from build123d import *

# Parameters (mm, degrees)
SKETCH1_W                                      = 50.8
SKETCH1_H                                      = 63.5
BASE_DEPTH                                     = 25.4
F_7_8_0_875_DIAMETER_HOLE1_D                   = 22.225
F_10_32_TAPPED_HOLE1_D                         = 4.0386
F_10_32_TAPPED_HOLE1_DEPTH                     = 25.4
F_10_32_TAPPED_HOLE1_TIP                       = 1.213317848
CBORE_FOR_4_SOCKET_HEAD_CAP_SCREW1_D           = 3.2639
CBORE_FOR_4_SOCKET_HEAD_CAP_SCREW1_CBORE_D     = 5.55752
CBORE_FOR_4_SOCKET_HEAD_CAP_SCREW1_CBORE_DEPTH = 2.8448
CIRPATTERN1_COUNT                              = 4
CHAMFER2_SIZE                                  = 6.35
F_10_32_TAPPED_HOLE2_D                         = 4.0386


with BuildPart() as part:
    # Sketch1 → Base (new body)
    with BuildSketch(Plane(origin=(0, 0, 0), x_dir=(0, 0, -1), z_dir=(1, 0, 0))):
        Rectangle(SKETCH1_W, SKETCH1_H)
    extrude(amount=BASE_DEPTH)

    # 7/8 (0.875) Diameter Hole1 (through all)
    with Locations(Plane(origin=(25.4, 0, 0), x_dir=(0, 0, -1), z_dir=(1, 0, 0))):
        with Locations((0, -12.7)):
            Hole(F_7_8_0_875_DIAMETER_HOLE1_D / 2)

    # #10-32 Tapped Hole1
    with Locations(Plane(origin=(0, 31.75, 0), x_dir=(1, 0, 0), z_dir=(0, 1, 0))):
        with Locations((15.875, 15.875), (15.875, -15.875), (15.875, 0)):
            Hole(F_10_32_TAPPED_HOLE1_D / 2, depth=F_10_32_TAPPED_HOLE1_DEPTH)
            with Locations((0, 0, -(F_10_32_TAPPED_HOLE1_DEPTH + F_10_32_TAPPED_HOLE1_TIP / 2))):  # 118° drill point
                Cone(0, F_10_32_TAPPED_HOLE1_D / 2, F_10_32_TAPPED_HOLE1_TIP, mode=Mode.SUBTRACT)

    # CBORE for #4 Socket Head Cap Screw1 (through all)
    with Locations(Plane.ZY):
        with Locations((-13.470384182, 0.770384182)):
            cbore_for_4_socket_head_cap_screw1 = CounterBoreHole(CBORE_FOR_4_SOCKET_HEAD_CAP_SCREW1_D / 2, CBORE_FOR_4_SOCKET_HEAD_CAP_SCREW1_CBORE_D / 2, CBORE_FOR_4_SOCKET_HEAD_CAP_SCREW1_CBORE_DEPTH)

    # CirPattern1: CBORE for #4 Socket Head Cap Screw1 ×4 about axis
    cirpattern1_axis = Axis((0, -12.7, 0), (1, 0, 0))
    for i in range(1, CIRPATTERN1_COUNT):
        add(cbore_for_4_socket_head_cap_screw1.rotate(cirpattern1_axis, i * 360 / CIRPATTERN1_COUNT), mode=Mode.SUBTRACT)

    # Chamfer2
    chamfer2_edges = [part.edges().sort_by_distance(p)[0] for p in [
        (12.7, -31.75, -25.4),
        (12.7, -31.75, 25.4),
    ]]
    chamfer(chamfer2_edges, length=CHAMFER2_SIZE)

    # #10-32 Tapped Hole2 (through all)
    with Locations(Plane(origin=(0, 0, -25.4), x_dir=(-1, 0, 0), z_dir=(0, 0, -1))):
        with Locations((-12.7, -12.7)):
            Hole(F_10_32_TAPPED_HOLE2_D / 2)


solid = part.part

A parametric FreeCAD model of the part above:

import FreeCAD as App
import Part
import Sketcher
Q = App.Units.Quantity


def edges_at(feature, points):
    """Names of the edges that pass closest to the given points."""
    edges = feature.Shape.Edges
    near = lambda p: min(range(len(edges)), key=lambda i: edges[i].distToShape(Part.Vertex(*p))[0])
    return sorted({f"Edge{near(p) + 1}" for p in points})

doc = App.newDocument("Part")
params = doc.addObject("Spreadsheet::Sheet", "Params")
for row, (alias, value) in enumerate([
    ("sketch1_height", "2 in"),
    ("sketch1_width", "2.5 in"),
    ("pad1_length", "1 in"),
    ("sketch2_diameter", "0.875 in"),
    ("hole_diameter", "0.875 in"),
    ("sketch3_diameter", "0.159 in"),
    ("hole2_diameter", "0.159 in"),
    ("hole2_depth", "1 in"),
    ("hole3_diameter", "0.1285 in"),
    ("hole3_cbore_diameter", "0.2188 in"),
    ("hole3_cbore_depth", "0.112 in"),
    ("chamfer_size", "0.25 in"),
    ("sketch5_diameter", "0.159 in"),
    ("hole4_diameter", "0.159 in"),
], start=1):
    params.set(f"A{row}", alias)
    params.set(f"B{row}", "=" + value)
    params.setAlias(f"B{row}", alias)

body = doc.addObject("PartDesign::Body", "Body")

sketch1 = doc.addObject("Sketcher::SketchObject", "Sketch")
body.addObject(sketch1)
sketch1.AttachmentSupport = (doc.YZ_Plane, [""])
sketch1.MapMode = "FlatFace"
sketch1.addGeometry([
    Part.LineSegment(App.Vector(31.75, 25.4, 0), App.Vector(-31.75, 25.4, 0)),
    Part.LineSegment(App.Vector(-31.75, 25.4, 0), App.Vector(-31.75, -25.4, 0)),
    Part.LineSegment(App.Vector(-31.75, -25.4, 0), App.Vector(31.75, -25.4, 0)),
    Part.LineSegment(App.Vector(31.75, -25.4, 0), App.Vector(31.75, 25.4, 0)),
], False)
sketch1.addConstraint([
    Sketcher.Constraint("Coincident", 0, 2, 1, 1),
    Sketcher.Constraint("Coincident", 1, 2, 2, 1),
    Sketcher.Constraint("Coincident", 2, 2, 3, 1),
    Sketcher.Constraint("Coincident", 3, 2, 0, 1),
    Sketcher.Constraint("Horizontal", 0),
    Sketcher.Constraint("Vertical", 1),
    Sketcher.Constraint("Horizontal", 2),
    Sketcher.Constraint("Vertical", 3),
    Sketcher.Constraint("Symmetric", 0, 2, 2, 2, -1, 1),
    Sketcher.Constraint("DistanceY", 1, 2, 1, 1, Q("2 in")),
    Sketcher.Constraint("DistanceX", 0, 2, 0, 1, Q("2.5 in")),
])
sketch1.setExpression("Constraints[9]", "Params.sketch1_height")
sketch1.setExpression("Constraints[10]", "Params.sketch1_width")
pad1 = doc.addObject("PartDesign::Pad", "Pad")
body.addObject(pad1)
pad1.Profile = sketch1
pad1.setExpression("Length", "Params.pad1_length")

sketch2 = doc.addObject("Sketcher::SketchObject", "Sketch001")
body.addObject(sketch2)
sketch2.AttachmentSupport = (doc.YZ_Plane, [""])
sketch2.MapMode = "FlatFace"
sketch2.AttachmentOffset = App.Placement(App.Vector(0, 0, 1 * 25.4), App.Rotation())
sketch2.addGeometry(Part.Circle(App.Vector(-12.7, 0, 0), App.Vector(0, 0, 1), 11.1125), False)
sketch2.addConstraint([
    Sketcher.Constraint("PointOnObject", 0, 3, -1),
    Sketcher.Constraint("Diameter", 0, Q("0.875 in")),
    Sketcher.Constraint("DistanceX", 0, 3, -1, 1, Q("0.5 in")),
])
sketch2.setExpression("Constraints[1]", "Params.sketch2_diameter")
doc.recompute()
hole = doc.addObject("PartDesign::Hole", "Hole")
body.addObject(hole)
hole.Profile = sketch2
hole.ThreadType = "None"
hole.setExpression("Diameter", "Params.hole_diameter")
hole.DepthType = "ThroughAll"

sketch3 = doc.addObject("Sketcher::SketchObject", "Sketch002")
body.addObject(sketch3)
sketch3.AttachmentSupport = (doc.XZ_Plane, [""])
sketch3.MapMode = "FlatFace"
sketch3.AttachmentOffset = App.Placement(App.Vector(0, 0, -1.25 * 25.4), App.Rotation())
sketch3.addGeometry([
    Part.Circle(App.Vector(15.875, -15.875, 0), App.Vector(0, 0, 1), 2.0193),
    Part.Circle(App.Vector(15.875, 15.875, 0), App.Vector(0, 0, 1), 2.0193),
    Part.Circle(App.Vector(15.875, 0, 0), App.Vector(0, 0, 1), 2.0193),
], False)
sketch3.addConstraint([
    Sketcher.Constraint("Equal", 0, 1),
    Sketcher.Constraint("Equal", 1, 2),
    Sketcher.Constraint("Symmetric", 0, 3, 1, 3, -1),
    Sketcher.Constraint("PointOnObject", 2, 3, -1),
    Sketcher.Constraint("Vertical", 1, 3, 2, 3),
    Sketcher.Constraint("Diameter", 0, Q("0.159 in")),
    Sketcher.Constraint("DistanceY", 0, 3, 1, 3, Q("1.25 in")),
    Sketcher.Constraint("DistanceX", -1, 1, 0, 3, Q("0.625 in")),
])
sketch3.setExpression("Constraints[5]", "Params.sketch3_diameter")
doc.recompute()
hole2 = doc.addObject("PartDesign::Hole", "Hole001")
body.addObject(hole2)
hole2.Profile = sketch3
hole2.ThreadType = "None"
hole2.setExpression("Diameter", "Params.hole2_diameter")
hole2.DepthType = "Dimension"
hole2.setExpression("Depth", "Params.hole2_depth")
hole2.DrillPoint = "Angled"
hole2.DrillPointAngle = 118
hole2.Reversed = True

sketch4 = doc.addObject("Sketcher::SketchObject", "Sketch003")
body.addObject(sketch4)
sketch4.AttachmentSupport = (doc.YZ_Plane, [""])
sketch4.MapMode = "FlatFace"
sketch4.addGeometry(Part.Circle(App.Vector(0.770384, -13.470384, 0), App.Vector(0, 0, 1), 1.63195), False)
sketch4.addConstraint([
    Sketcher.Constraint("Diameter", 0, Q("0.1285 in")),
    Sketcher.Constraint("DistanceX", -1, 1, 0, 3, 0.770384),
    Sketcher.Constraint("DistanceY", 0, 3, -1, 1, 13.470384),
])
doc.recompute()
hole3 = doc.addObject("PartDesign::Hole", "Hole002")
body.addObject(hole3)
hole3.Profile = sketch4
hole3.ThreadType = "None"
hole3.setExpression("Diameter", "Params.hole3_diameter")
hole3.DepthType = "ThroughAll"
hole3.HoleCutType = "Counterbore"
hole3.setExpression("HoleCutDiameter", "Params.hole3_cbore_diameter")
hole3.setExpression("HoleCutDepth", "Params.hole3_cbore_depth")
hole3.Reversed = True
doc.recompute()

datumline = doc.addObject("PartDesign::Line", "DatumLine")
body.addObject(datumline)
datumline.Placement = App.Placement(App.Vector(0, -12.7, 0), App.Rotation(App.Vector(0, 0, 1), App.Vector(1, 0, 0)))
polarpattern = doc.addObject("PartDesign::PolarPattern", "PolarPattern")
body.addObject(polarpattern)
polarpattern.Originals = [hole3]
polarpattern.Axis = (datumline, [""])
polarpattern.Angle = 360
polarpattern.Occurrences = 4
body.Tip = polarpattern
doc.recompute()

chamfer = doc.addObject("PartDesign::Chamfer", "Chamfer")
body.addObject(chamfer)
chamfer.Base = (polarpattern, edges_at(polarpattern, [(12.7, -31.75, -25.4), (12.7, -31.75, 25.4)]))
chamfer.setExpression("Size", "Params.chamfer_size")

sketch5 = doc.addObject("Sketcher::SketchObject", "Sketch004")
body.addObject(sketch5)
sketch5.AttachmentSupport = (doc.XY_Plane, [""])
sketch5.MapMode = "FlatFace"
sketch5.AttachmentOffset = App.Placement(App.Vector(0, 0, -1 * 25.4), App.Rotation())
sketch5.addGeometry(Part.Circle(App.Vector(12.7, -12.7, 0), App.Vector(0, 0, 1), 2.0193), False)
sketch5.addConstraint([
    Sketcher.Constraint("Diameter", 0, Q("0.159 in")),
    Sketcher.Constraint("DistanceX", -1, 1, 0, 3, Q("0.5 in")),
    Sketcher.Constraint("DistanceY", 0, 3, -1, 1, Q("0.5 in")),
])
sketch5.setExpression("Constraints[0]", "Params.sketch5_diameter")
doc.recompute()
hole4 = doc.addObject("PartDesign::Hole", "Hole003")
body.addObject(hole4)
hole4.Profile = sketch5
hole4.ThreadType = "None"
hole4.setExpression("Diameter", "Params.hole4_diameter")
hole4.DepthType = "ThroughAll"
hole4.Reversed = True

doc.recompute()
